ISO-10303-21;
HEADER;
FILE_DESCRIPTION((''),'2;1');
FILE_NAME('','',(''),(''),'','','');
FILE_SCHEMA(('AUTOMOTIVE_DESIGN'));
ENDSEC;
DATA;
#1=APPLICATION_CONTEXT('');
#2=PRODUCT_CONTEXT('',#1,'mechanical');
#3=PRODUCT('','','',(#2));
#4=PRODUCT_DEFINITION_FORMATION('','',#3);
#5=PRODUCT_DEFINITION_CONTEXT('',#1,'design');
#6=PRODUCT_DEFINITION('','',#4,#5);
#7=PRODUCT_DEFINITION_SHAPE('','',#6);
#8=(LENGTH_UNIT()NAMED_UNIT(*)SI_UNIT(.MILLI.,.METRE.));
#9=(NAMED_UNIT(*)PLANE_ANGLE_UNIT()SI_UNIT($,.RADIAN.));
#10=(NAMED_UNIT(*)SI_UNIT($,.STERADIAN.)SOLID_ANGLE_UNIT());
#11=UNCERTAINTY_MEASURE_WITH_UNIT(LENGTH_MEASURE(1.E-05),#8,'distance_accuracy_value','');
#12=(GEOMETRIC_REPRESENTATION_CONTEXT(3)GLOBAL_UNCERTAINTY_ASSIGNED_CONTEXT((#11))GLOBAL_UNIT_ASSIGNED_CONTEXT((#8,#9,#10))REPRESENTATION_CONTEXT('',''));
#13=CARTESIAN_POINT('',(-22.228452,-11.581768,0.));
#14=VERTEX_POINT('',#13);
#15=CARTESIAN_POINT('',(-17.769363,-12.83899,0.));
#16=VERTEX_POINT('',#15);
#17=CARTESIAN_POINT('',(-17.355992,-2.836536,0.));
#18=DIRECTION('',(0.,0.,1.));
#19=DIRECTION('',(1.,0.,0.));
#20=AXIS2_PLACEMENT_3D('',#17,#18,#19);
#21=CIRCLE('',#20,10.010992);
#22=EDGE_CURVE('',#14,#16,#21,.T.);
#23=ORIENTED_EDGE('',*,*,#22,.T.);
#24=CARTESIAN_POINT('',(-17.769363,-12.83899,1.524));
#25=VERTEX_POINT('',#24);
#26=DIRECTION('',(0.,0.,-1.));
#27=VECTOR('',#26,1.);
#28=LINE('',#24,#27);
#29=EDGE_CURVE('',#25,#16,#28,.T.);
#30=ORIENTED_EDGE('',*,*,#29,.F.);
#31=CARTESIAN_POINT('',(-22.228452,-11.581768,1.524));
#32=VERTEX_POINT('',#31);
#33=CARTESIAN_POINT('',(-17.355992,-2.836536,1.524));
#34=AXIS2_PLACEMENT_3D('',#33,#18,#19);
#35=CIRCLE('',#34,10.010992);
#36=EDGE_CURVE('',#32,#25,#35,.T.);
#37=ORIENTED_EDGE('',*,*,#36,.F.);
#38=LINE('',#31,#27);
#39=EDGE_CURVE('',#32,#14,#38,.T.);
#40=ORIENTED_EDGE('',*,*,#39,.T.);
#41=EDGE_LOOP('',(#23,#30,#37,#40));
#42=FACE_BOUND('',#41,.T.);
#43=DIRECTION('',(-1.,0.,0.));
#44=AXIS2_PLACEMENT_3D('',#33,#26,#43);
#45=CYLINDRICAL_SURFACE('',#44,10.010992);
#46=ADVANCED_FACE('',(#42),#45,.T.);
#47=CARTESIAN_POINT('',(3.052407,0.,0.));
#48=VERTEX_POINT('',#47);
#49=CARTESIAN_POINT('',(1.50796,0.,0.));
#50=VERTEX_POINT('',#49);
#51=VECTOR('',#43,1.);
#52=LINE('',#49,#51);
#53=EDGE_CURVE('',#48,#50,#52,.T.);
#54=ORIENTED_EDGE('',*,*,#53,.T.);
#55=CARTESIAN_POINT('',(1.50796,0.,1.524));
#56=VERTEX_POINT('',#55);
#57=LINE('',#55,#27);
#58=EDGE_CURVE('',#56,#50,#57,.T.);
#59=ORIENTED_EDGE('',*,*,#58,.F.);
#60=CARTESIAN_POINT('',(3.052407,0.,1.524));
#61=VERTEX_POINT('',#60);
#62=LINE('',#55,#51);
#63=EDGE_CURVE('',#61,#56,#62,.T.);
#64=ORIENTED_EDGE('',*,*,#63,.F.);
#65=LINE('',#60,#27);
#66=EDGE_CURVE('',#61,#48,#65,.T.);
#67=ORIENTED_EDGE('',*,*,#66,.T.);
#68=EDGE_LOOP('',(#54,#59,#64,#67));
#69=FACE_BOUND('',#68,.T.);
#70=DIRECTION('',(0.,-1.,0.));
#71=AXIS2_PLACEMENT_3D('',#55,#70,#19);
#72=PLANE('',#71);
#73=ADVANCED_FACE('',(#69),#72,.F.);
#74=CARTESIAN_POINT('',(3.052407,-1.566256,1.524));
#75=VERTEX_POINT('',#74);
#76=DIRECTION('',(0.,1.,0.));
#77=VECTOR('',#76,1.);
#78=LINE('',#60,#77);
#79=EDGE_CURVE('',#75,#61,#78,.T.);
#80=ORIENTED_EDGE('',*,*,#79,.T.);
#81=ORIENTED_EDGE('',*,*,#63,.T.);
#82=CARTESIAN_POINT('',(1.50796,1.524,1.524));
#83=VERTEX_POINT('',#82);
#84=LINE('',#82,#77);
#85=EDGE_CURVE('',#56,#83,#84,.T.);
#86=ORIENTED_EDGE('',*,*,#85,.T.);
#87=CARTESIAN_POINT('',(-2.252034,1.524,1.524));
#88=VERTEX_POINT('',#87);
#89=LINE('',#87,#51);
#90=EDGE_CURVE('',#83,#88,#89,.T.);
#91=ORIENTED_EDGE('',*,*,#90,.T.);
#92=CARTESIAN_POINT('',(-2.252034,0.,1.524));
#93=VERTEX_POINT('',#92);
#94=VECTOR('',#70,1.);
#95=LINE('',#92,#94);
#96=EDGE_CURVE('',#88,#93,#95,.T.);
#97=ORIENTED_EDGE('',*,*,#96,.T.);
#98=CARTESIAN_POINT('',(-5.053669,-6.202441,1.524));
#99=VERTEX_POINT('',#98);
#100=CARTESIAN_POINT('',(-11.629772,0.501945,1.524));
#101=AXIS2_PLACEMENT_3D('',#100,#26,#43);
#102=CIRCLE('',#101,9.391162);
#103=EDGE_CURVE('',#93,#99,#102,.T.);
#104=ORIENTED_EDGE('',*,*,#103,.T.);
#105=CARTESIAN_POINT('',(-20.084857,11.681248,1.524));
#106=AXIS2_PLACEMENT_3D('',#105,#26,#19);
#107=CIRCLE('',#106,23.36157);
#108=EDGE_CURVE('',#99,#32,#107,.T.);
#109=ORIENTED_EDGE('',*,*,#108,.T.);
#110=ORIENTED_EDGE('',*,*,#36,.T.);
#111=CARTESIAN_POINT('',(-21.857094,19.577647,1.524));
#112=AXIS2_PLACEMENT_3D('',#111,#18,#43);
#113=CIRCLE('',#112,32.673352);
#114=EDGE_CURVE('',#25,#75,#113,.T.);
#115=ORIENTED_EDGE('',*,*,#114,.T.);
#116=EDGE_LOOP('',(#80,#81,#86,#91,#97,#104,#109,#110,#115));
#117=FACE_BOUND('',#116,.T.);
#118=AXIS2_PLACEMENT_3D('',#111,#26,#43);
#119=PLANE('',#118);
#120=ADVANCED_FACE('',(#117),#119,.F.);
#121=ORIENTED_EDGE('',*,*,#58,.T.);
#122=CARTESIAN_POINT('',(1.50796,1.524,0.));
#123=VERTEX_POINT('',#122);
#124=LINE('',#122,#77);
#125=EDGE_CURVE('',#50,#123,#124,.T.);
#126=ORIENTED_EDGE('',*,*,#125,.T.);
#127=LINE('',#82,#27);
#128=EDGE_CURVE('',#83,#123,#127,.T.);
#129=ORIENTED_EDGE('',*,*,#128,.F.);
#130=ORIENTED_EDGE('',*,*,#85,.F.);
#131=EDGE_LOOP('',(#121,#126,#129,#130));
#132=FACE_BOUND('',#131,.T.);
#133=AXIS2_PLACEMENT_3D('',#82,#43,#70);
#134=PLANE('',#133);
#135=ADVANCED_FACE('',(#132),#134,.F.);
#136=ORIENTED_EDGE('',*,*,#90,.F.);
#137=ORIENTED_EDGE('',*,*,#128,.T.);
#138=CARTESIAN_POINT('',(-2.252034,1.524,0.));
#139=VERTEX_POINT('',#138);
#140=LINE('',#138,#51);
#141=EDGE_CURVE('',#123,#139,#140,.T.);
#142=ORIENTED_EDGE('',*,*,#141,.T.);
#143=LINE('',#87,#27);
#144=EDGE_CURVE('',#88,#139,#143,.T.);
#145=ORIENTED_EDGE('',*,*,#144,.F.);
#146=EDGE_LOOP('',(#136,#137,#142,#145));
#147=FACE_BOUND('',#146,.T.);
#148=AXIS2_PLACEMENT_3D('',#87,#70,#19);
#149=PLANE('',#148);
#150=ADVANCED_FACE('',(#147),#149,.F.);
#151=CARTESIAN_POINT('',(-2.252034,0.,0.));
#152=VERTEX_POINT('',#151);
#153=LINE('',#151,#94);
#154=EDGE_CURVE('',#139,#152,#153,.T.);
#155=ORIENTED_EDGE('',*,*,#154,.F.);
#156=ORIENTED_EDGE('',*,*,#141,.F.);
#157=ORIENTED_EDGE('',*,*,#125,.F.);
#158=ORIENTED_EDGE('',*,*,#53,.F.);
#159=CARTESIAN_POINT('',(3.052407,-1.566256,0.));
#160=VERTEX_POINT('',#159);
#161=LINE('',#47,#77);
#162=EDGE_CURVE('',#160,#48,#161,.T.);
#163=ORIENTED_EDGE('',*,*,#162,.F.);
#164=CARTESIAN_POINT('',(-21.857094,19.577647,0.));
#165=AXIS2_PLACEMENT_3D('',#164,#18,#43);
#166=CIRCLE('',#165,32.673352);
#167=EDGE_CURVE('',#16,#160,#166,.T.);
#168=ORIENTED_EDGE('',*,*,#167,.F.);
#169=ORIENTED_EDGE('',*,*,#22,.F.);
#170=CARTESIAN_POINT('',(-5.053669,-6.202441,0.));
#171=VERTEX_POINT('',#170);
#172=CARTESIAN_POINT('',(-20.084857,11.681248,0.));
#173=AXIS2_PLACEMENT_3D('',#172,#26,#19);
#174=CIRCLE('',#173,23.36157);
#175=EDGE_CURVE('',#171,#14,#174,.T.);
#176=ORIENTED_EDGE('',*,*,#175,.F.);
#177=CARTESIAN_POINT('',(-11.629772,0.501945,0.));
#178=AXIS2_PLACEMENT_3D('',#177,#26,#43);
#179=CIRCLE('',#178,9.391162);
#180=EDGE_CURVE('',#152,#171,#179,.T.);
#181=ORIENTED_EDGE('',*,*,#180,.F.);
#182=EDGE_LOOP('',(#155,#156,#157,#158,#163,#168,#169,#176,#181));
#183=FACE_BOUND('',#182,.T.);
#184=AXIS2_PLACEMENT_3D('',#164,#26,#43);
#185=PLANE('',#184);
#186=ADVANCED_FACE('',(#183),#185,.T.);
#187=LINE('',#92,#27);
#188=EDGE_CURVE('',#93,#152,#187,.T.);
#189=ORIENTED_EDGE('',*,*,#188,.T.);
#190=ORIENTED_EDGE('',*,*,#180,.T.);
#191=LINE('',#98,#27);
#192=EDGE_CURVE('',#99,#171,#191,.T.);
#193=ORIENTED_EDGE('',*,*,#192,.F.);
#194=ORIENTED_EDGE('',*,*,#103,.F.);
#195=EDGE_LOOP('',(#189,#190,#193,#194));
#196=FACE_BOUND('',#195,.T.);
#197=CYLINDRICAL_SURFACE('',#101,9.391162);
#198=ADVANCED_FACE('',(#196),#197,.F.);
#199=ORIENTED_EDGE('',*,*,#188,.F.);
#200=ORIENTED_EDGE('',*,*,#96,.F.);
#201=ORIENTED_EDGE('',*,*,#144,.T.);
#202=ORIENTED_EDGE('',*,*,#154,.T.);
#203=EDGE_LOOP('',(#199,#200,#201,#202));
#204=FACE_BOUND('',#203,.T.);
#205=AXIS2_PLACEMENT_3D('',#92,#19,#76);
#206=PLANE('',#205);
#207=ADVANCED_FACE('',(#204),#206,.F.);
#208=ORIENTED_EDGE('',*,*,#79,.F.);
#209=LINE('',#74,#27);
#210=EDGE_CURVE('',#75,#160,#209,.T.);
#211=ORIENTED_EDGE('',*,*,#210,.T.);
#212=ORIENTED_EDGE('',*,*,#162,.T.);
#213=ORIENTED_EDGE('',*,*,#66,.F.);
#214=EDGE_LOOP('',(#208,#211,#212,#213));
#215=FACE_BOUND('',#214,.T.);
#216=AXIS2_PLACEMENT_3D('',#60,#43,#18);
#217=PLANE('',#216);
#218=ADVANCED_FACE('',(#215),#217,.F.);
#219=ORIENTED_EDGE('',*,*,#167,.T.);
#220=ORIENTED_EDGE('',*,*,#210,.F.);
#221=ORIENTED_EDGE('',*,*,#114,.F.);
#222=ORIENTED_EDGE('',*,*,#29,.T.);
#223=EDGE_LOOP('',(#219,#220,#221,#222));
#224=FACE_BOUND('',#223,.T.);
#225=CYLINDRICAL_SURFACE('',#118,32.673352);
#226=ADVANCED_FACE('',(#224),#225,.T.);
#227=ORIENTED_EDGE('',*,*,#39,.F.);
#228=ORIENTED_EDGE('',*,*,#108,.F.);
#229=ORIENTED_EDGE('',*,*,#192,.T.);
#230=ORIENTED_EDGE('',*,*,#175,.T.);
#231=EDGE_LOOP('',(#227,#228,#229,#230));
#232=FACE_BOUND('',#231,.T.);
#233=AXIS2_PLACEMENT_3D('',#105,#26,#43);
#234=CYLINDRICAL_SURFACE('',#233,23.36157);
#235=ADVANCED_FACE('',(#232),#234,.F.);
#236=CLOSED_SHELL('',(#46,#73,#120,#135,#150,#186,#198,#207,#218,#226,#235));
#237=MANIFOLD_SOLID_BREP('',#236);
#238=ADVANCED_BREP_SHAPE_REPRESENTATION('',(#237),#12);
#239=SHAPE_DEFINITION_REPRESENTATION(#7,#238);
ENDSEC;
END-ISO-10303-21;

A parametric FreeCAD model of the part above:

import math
import FreeCAD as App
import Part
import Sketcher

V = App.Vector
Q = App.Units.Quantity

doc = App.newDocument("Part")
body = doc.addObject("PartDesign::Body", "Body")

# Sketch on XY plane
sketch1 = body.newObject("Sketcher::SketchObject", "Sketch")
sketch1.AttachmentSupport = (doc.getObject("XY_Plane"), [""])
sketch1.MapMode = "FlatFace"
sketch1.addGeometry([
    Part.LineSegment(V(1.5, 0, 0), V(1.5, 1.5, 0)),  # 0
    Part.LineSegment(V(1.5, 1.5, 0), V(-2.3, 1.5, 0)),  # 1
    Part.LineSegment(V(-2.3, 1.5, 0), V(-2.3, 0, 0)),  # 2
    Part.ArcOfCircle(Part.Circle(V(-11.6, 0.5, 0), V(0, 0, 1), 9.4), math.radians(-46), math.radians(-3)),  # 3
    Part.ArcOfCircle(Part.Circle(V(-20.1, 11.7, 0), V(0, 0, 1), 23.4), math.radians(-95), math.radians(-50)),  # 4
    Part.ArcOfCircle(Part.Circle(V(-17.4, -2.8, 0), V(0, 0, 1), 10), math.radians(-119), math.radians(-92)),  # 5
    Part.ArcOfCircle(Part.Circle(V(-21.9, 19.6, 0), V(0, 0, 1), 32.7), math.radians(-83), math.radians(-40)),  # 6
    Part.LineSegment(V(3.1, -1.6, 0), V(3.1, 0, 0)),  # 7
    Part.LineSegment(V(3.1, 0, 0), V(1.5, 0, 0)),  # 8
], False)
sketch1.addConstraint([
    Sketcher.Constraint("Coincident", 0, 2, 1, 1),
    Sketcher.Constraint("Coincident", 1, 2, 2, 1),
    Sketcher.Constraint("Coincident", 2, 2, 3, 2),
    Sketcher.Constraint("Coincident", 3, 1, 4, 2),
    Sketcher.Constraint("Coincident", 4, 1, 5, 1),
    Sketcher.Constraint("Coincident", 5, 2, 6, 1),
    Sketcher.Constraint("Coincident", 6, 2, 7, 1),
    Sketcher.Constraint("Coincident", 7, 2, 8, 1),
    Sketcher.Constraint("Coincident", 8, 2, 0, 1),
    Sketcher.Constraint("Vertical", 0),
    Sketcher.Constraint("Horizontal", 1),
    Sketcher.Constraint("Vertical", 2),
    Sketcher.Constraint("Vertical", 7),
    Sketcher.Constraint("Horizontal", 8),
    Sketcher.Constraint("PointOnObject", 2, 2, -1),
    Sketcher.Constraint("PointOnObject", 7, 2, -1),
    Sketcher.Constraint("DistanceY", 0, 1, 0, 2, Q("0.06 in")),
    Sketcher.Constraint("Radius", 3, Q("9.391162 mm")),
    Sketcher.Constraint("Radius", 4, Q("23.36157 mm")),
    Sketcher.Constraint("Radius", 5, Q("10.010992 mm")),
    Sketcher.Constraint("Radius", 6, Q("32.673352 mm")),
    Sketcher.Constraint("DistanceY", 4, 3, 6, 3, Q("7.896399 mm")),
    Sketcher.Constraint("DistanceY", 3, 3, 6, 3, Q("19.075702 mm")),
    Sketcher.Constraint("DistanceY", 6, 2, 3, 3, Q("2.068202 mm")),
    Sketcher.Constraint("DistanceX", 1, 2, 1, 1, Q("3.759994 mm")),
    Sketcher.Constraint("DistanceX", 8, 2, 8, 1, Q("1.544447 mm")),
    Sketcher.Constraint("DistanceY", 7, 1, 7, 2, Q("1.566256 mm")),
    Sketcher.Constraint("DistanceX", 3, 3, -1, 1, Q("11.629772 mm")),
    Sketcher.Constraint("DistanceX", 5, 3, -1, 1, Q("17.355992 mm")),
    Sketcher.Constraint("DistanceX", 3, 1, -1, 1, Q("5.053669 mm")),
    Sketcher.Constraint("DistanceY", 4, 1, -1, 1, Q("11.581768 mm")),
])
pad1 = body.newObject("PartDesign::Pad", "Pad")
pad1.Profile = sketch1
pad1.Length = Q("0.06 in")

doc.recompute()
